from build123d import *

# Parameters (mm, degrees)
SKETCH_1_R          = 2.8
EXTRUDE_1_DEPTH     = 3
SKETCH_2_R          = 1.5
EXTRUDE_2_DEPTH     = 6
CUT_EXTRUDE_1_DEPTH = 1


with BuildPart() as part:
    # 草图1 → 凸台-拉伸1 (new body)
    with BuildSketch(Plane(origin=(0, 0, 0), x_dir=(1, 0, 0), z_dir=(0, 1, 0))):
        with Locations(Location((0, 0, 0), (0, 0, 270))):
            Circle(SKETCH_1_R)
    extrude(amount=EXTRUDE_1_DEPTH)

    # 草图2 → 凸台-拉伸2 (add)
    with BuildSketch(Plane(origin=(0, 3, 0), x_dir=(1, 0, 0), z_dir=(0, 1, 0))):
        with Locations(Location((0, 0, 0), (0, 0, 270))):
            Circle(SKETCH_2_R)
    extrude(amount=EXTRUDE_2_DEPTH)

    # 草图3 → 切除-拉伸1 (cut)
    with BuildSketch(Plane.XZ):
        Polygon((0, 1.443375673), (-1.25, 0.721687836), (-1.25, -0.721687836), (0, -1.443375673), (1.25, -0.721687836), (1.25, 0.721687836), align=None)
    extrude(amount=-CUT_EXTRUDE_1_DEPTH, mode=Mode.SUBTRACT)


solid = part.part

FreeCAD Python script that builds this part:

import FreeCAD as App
import Part
import Sketcher

V = App.Vector
Q = App.Units.Quantity


def add_polygon(sketch, points):
    """Adds a closed chain of lines whose ends are joined by coincident constraints."""
    first, n = sketch.GeometryCount, len(points)
    for a, b in zip(points, points[1:] + points[:1]):
        sketch.addGeometry(Part.LineSegment(App.Vector(*a, 0), App.Vector(*b, 0)), False)
    for i in range(n):
        sketch.addConstraint(Sketcher.Constraint("Coincident", first + i, 2, first + (i + 1) % n, 1))

doc = App.newDocument("Part")
params = doc.addObject("Spreadsheet::Sheet", "Params")
for row, (alias, value) in enumerate([
    ("sketch1_diameter", "5.6 mm"),
    ("pad1_length", "3 mm"),
    ("sketch2_diameter", "3 mm"),
    ("pad2_length", "6 mm"),
    ("pocket1_length", "1 mm"),
], start=1):
    params.set(f"A{row}", alias)
    params.set(f"B{row}", "=" + value)
    params.setAlias(f"B{row}", alias)

body = doc.addObject("PartDesign::Body", "Body")

sketch1 = body.newObject("Sketcher::SketchObject", "Sketch")
sketch1.AttachmentSupport = (doc.getObject("XZ_Plane"), [""])
sketch1.MapMode = "FlatFace"
sketch1.addGeometry(Part.Circle(V(0, 0, 0), V(0, 0, 1), 2.8), False)
sketch1.addConstraint(Sketcher.Constraint("Coincident", 0, 3, -1, 1))
sketch1.addConstraint(Sketcher.Constraint("Diameter", 0, Q("5.6 mm")))
sketch1.setExpression("Constraints[1]", "Params.sketch1_diameter")
pad1 = body.newObject("PartDesign::Pad", "Pad")
pad1.Profile = sketch1
pad1.setExpression("Length", "Params.pad1_length")
pad1.Reversed = True

sketch2 = body.newObject("Sketcher::SketchObject", "Sketch001")
sketch2.AttachmentSupport = (doc.getObject("XZ_Plane"), [""])
sketch2.MapMode = "FlatFace"
sketch2.AttachmentOffset = App.Placement(V(0, 0, -3), App.Rotation())
sketch2.addGeometry(Part.Circle(V(0, 0, 0), V(0, 0, 1), 1.5), False)
sketch2.addConstraint(Sketcher.Constraint("Coincident", 0, 3, -1, 1))
sketch2.addConstraint(Sketcher.Constraint("Diameter", 0, Q("3 mm")))
sketch2.setExpression("Constraints[1]", "Params.sketch2_diameter")
pad2 = body.newObject("PartDesign::Pad", "Pad001")
pad2.Profile = sketch2
pad2.setExpression("Length", "Params.pad2_length")
pad2.Reversed = True

sketch3 = body.newObject("Sketcher::SketchObject", "Sketch002")
sketch3.AttachmentSupport = (doc.getObject("XZ_Plane"), [""])
sketch3.MapMode = "FlatFace"
add_polygon(sketch3, [(0, 1.443376), (-1.25, 0.721688), (-1.25, -0.721688), (0, -1.443376), (1.25, -0.721688), (1.25, 0.721688)])
sketch3.addConstraint(Sketcher.Constraint("Vertical", 1))
sketch3.addConstraint(Sketcher.Constraint("Vertical", 4))
sketch3.addConstraint(Sketcher.Constraint("Symmetric", 0, 2, 3, 2, -1, 1))
sketch3.addConstraint(Sketcher.Constraint("Symmetric", 2, 2, 5, 2, -1, 1))
sketch3.addConstraint(Sketcher.Constraint("PointOnObject", 2, 2, -2))
sketch3.addConstraint(Sketcher.Constraint("Parallel", 2, 5))
sketch3.addConstraint(Sketcher.Constraint("Horizontal", 1, 2, 3, 2))
sketch3.addConstraint(Sketcher.Constraint("Angle", 0, Q("-150 deg")))
sketch3.addConstraint(Sketcher.Constraint("DistanceX", 1, 2, 3, 2, Q("2.5 mm")))
sketch3.addConstraint(Sketcher.Constraint("DistanceY", 1, 2, 1, 1, Q("1.443376 mm")))
pocket1 = body.newObject("PartDesign::Pocket", "Pocket")
pocket1.Profile = sketch3
pocket1.setExpression("Length", "Params.pocket1_length")

doc.recompute()
